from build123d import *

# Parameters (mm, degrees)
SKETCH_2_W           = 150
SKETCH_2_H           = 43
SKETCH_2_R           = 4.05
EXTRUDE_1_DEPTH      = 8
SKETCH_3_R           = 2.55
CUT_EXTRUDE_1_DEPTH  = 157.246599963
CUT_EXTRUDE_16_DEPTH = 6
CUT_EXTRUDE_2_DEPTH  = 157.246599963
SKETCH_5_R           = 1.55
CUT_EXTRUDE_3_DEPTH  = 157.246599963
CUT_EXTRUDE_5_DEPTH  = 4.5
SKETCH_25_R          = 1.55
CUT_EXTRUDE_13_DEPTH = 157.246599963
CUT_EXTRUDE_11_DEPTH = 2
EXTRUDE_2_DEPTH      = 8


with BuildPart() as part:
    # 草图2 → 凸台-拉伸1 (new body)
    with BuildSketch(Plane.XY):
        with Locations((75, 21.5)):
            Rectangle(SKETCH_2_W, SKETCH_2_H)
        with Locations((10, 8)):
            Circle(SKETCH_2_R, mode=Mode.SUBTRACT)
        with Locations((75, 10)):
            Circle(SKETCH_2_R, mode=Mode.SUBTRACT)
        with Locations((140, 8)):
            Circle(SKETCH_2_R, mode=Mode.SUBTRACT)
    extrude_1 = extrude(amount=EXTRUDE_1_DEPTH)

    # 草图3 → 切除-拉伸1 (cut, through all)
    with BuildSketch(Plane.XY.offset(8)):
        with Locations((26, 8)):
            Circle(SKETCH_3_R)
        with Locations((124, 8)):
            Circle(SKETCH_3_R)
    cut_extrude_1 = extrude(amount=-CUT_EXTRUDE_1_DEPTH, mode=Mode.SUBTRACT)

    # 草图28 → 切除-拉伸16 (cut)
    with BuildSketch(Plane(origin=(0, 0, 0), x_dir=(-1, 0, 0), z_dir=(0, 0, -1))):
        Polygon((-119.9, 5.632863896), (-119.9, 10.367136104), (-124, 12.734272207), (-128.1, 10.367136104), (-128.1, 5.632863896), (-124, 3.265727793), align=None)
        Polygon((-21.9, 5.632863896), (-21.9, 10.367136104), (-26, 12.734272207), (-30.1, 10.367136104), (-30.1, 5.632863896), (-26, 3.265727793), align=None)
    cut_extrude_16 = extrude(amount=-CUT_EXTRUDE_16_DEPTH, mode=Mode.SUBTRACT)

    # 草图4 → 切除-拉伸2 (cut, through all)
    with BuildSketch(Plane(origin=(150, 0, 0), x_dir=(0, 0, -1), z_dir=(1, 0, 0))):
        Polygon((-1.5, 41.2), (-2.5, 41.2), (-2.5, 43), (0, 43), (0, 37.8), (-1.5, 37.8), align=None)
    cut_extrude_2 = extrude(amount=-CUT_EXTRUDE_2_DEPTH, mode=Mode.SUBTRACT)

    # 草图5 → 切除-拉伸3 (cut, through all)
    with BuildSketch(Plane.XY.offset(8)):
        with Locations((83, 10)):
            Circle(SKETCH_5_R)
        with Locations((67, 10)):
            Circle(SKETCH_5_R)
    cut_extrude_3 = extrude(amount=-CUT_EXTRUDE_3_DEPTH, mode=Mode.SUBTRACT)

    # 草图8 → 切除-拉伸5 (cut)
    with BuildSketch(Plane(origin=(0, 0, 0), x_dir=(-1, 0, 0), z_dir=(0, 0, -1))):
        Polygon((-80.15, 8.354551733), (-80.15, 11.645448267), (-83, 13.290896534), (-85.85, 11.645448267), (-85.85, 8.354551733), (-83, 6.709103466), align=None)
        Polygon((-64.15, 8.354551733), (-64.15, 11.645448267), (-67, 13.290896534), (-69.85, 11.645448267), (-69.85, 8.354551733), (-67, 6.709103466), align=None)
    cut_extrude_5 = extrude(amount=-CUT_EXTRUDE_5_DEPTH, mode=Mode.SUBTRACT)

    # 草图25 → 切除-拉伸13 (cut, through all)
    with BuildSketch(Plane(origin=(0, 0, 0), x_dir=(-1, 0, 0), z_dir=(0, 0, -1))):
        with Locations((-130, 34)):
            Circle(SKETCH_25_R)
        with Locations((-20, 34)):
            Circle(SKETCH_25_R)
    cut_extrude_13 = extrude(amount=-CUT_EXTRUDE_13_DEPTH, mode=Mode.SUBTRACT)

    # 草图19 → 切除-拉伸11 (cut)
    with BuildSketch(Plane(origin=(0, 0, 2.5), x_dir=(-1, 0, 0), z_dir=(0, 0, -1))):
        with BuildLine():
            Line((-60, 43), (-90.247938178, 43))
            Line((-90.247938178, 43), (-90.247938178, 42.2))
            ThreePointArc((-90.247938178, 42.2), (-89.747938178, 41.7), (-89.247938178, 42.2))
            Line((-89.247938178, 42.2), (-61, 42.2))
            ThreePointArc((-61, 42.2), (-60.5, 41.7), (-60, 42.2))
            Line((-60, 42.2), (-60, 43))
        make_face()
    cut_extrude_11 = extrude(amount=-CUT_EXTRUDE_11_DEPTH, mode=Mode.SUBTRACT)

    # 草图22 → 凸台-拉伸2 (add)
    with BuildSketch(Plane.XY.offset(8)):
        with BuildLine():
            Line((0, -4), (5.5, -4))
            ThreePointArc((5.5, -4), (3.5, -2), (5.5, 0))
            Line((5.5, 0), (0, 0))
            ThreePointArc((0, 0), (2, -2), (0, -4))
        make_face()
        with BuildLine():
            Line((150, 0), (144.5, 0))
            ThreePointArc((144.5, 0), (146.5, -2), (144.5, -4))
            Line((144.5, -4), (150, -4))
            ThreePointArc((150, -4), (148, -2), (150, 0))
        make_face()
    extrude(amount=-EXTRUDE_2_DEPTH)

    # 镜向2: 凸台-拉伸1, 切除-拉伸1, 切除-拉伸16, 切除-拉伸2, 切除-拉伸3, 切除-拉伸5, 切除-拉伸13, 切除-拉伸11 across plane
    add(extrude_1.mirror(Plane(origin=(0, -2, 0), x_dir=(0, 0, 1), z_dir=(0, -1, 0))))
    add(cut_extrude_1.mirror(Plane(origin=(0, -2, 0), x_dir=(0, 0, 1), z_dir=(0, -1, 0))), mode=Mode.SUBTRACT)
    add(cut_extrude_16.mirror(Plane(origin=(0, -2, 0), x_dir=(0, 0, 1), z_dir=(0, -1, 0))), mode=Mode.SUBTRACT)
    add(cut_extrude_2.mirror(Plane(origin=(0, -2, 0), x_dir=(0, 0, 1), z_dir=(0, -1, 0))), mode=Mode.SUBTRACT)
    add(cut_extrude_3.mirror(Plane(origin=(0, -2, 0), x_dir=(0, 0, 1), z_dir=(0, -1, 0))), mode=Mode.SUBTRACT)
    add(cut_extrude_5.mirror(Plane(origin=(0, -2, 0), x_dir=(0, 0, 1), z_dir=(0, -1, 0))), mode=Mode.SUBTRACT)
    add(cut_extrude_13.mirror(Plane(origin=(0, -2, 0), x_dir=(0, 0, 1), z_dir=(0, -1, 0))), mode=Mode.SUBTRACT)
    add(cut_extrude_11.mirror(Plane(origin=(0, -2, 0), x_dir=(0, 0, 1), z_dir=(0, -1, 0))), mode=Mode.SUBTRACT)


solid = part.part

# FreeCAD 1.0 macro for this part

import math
import FreeCAD as App
import Part
import Sketcher
Q = App.Units.Quantity


def add_polygon(sketch, points):
    """Adds a closed chain of lines whose ends are joined by coincident constraints."""
    first, n = sketch.GeometryCount, len(points)
    for a, b in zip(points, points[1:] + points[:1]):
        sketch.addGeometry(Part.LineSegment(App.Vector(*a, 0), App.Vector(*b, 0)), False)
    for i in range(n):
        sketch.addConstraint(Sketcher.Constraint("Coincident", first + i, 2, first + (i + 1) % n, 1))

doc = App.newDocument("Part")
body = doc.addObject("PartDesign::Body", "Body")

# Sketch on XY plane
sketch1 = body.newObject("Sketcher::SketchObject", "Sketch")
sketch1.AttachmentSupport = (doc.getObject("XY_Plane"), [""])
sketch1.MapMode = "FlatFace"
add_polygon(sketch1, [(0, 43), (0, 0), (150, 0), (150, 43)])  # lines 0-3
sketch1.addGeometry(Part.Circle(App.Vector(10, 8, 0), App.Vector(0, 0, 1), 4), False)  # 4
sketch1.addGeometry(Part.Circle(App.Vector(140, 8, 0), App.Vector(0, 0, 1), 4), False)  # 5
sketch1.addGeometry(Part.Circle(App.Vector(75, 10, 0), App.Vector(0, 0, 1), 4), False)  # 6
sketch1.addConstraint(Sketcher.Constraint("Vertical", 0))
sketch1.addConstraint(Sketcher.Constraint("Horizontal", 1))
sketch1.addConstraint(Sketcher.Constraint("Vertical", 2))
sketch1.addConstraint(Sketcher.Constraint("Horizontal", 3))
sketch1.addConstraint(Sketcher.Constraint("Coincident", 0, 2, -1, 1))
sketch1.addConstraint(Sketcher.Constraint("Equal", 4, 5))
sketch1.addConstraint(Sketcher.Constraint("Equal", 5, 6))
sketch1.addConstraint(Sketcher.Constraint("Horizontal", 4, 3, 5, 3))
sketch1.addConstraint(Sketcher.Constraint("Diameter", 4, Q("8.1 mm")))
sketch1.addConstraint(Sketcher.Constraint("DistanceX", 1, 1, 1, 2, Q("150 mm")))
sketch1.addConstraint(Sketcher.Constraint("DistanceY", 0, 2, 0, 1, Q("43 mm")))
sketch1.addConstraint(Sketcher.Constraint("DistanceX", -1, 1, 4, 3, Q("10 mm")))
sketch1.addConstraint(Sketcher.Constraint("DistanceY", -1, 1, 4, 3, Q("8 mm")))
sketch1.addConstraint(Sketcher.Constraint("DistanceX", -1, 1, 5, 3, Q("140 mm")))
sketch1.addConstraint(Sketcher.Constraint("DistanceX", -1, 1, 6, 3, Q("75 mm")))
sketch1.addConstraint(Sketcher.Constraint("DistanceY", -1, 1, 6, 3, Q("10 mm")))
pad1 = body.newObject("PartDesign::Pad", "Pad")
pad1.Profile = sketch1
pad1.Length = 8

# Sketch on XY plane
sketch2 = body.newObject("Sketcher::SketchObject", "Sketch001")
sketch2.AttachmentSupport = (doc.getObject("XY_Plane"), [""])
sketch2.MapMode = "FlatFace"
sketch2.AttachmentOffset = App.Placement(App.Vector(0, 0, 8), App.Rotation())
sketch2.addGeometry(Part.Circle(App.Vector(26, 8, 0), App.Vector(0, 0, 1), 2.5), False)
sketch2.addGeometry(Part.Circle(App.Vector(124, 8, 0), App.Vector(0, 0, 1), 2.5), False)
sketch2.addConstraint(Sketcher.Constraint("Equal", 0, 1))
sketch2.addConstraint(Sketcher.Constraint("Horizontal", 0, 3, 1, 3))
sketch2.addConstraint(Sketcher.Constraint("Diameter", 0, Q("5.1 mm")))
sketch2.addConstraint(Sketcher.Constraint("DistanceX", -1, 1, 0, 3, Q("26 mm")))
sketch2.addConstraint(Sketcher.Constraint("DistanceY", -1, 1, 0, 3, Q("8 mm")))
sketch2.addConstraint(Sketcher.Constraint("DistanceX", -1, 1, 1, 3, Q("124 mm")))
pocket1 = body.newObject("PartDesign::Pocket", "Pocket")
pocket1.Profile = sketch2
pocket1.Type = "ThroughAll"

# Sketch on XY plane
sketch3 = body.newObject("Sketcher::SketchObject", "Sketch002")
sketch3.AttachmentSupport = (doc.getObject("XY_Plane"), [""])
sketch3.MapMode = "FlatFace"
add_polygon(sketch3, [(119.9, 5.6), (119.9, 10.4), (124, 12.7), (128.1, 10.4), (128.1, 5.6), (124, 3.3)])  # lines 0-5
add_polygon(sketch3, [(21.9, 5.6), (21.9, 10.4), (26, 12.7), (30.1, 10.4), (30.1, 5.6), (26, 3.3)])  # lines 6-11
sketch3.addConstraint(Sketcher.Constraint("Vertical", 0))
sketch3.addConstraint(Sketcher.Constraint("Vertical", 3))
sketch3.addConstraint(Sketcher.Constraint("Vertical", 6))
sketch3.addConstraint(Sketcher.Constraint("Vertical", 9))
sketch3.addConstraint(Sketcher.Constraint("Parallel", 1, 4))
sketch3.addConstraint(Sketcher.Constraint("Parallel", 2, 5))
sketch3.addConstraint(Sketcher.Constraint("Parallel", 4, 7))
sketch3.addConstraint(Sketcher.Constraint("Parallel", 5, 8))
sketch3.addConstraint(Sketcher.Constraint("Parallel", 7, 10))
sketch3.addConstraint(Sketcher.Constraint("Parallel", 8, 11))
sketch3.addConstraint(Sketcher.Constraint("Horizontal", 0, 2, 2, 2))
sketch3.addConstraint(Sketcher.Constraint("Horizontal", 3, 2, 5, 2))
sketch3.addConstraint(Sketcher.Constraint("Horizontal", 2, 2, 6, 2))
sketch3.addConstraint(Sketcher.Constraint("Horizontal", 1, 2, 7, 2))
sketch3.addConstraint(Sketcher.Constraint("Horizontal", 6, 2, 8, 2))
sketch3.addConstraint(Sketcher.Constraint("Horizontal", 5, 2, 9, 2))
sketch3.addConstraint(Sketcher.Constraint("Horizontal", 4, 2, 10, 2))
sketch3.addConstraint(Sketcher.Constraint("Vertical", 1, 2, 4, 2))
sketch3.addConstraint(Sketcher.Constraint("Angle", 1, Q("30 deg")))
sketch3.addConstraint(Sketcher.Constraint("DistanceX", -1, 1, 1, 2, Q("124 mm")))
sketch3.addConstraint(Sketcher.Constraint("DistanceX", -1, 1, 7, 2, Q("26 mm")))
sketch3.addConstraint(Sketcher.Constraint("DistanceX", -1, 1, 0, 2, Q("119.9 mm")))
sketch3.addConstraint(Sketcher.Constraint("DistanceY", 0, 1, 0, 2, Q("4.734272 mm")))
sketch3.addConstraint(Sketcher.Constraint("DistanceY", -1, 1, 0, 2, Q("10.367136 mm")))
pocket2 = body.newObject("PartDesign::Pocket", "Pocket001")
pocket2.Profile = sketch3
pocket2.Length = 6
pocket2.Reversed = True

# Sketch on YZ plane
sketch4 = body.newObject("Sketcher::SketchObject", "Sketch003")
sketch4.AttachmentSupport = (doc.getObject("YZ_Plane"), [""])
sketch4.MapMode = "FlatFace"
sketch4.AttachmentOffset = App.Placement(App.Vector(0, 0, 150), App.Rotation())
add_polygon(sketch4, [(41.2, 2.5), (41.2, 1.5), (37.8, 1.5), (37.8, 0), (43, 0), (43, 2.5)])  # lines 0-5
sketch4.addConstraint(Sketcher.Constraint("Vertical", 0))
sketch4.addConstraint(Sketcher.Constraint("Horizontal", 1))
sketch4.addConstraint(Sketcher.Constraint("Vertical", 2))
sketch4.addConstraint(Sketcher.Constraint("Horizontal", 3))
sketch4.addConstraint(Sketcher.Constraint("Vertical", 4))
sketch4.addConstraint(Sketcher.Constraint("Horizontal", 5))
sketch4.addConstraint(Sketcher.Constraint("PointOnObject", 2, 2, -1))
sketch4.addConstraint(Sketcher.Constraint("DistanceY", 0, 2, 0, 1, Q("1 mm")))
sketch4.addConstraint(Sketcher.Constraint("DistanceX", 1, 2, 1, 1, Q("3.4 mm")))
sketch4.addConstraint(Sketcher.Constraint("DistanceX", 3, 1, 3, 2, Q("5.2 mm")))
sketch4.addConstraint(Sketcher.Constraint("DistanceY", 2, 2, 2, 1, Q("1.5 mm")))
sketch4.addConstraint(Sketcher.Constraint("DistanceX", -1, 1, 3, 2, Q("43 mm")))
pocket3 = body.newObject("PartDesign::Pocket", "Pocket002")
pocket3.Profile = sketch4
pocket3.Type = "ThroughAll"

# Sketch on XY plane
sketch5 = body.newObject("Sketcher::SketchObject", "Sketch004")
sketch5.AttachmentSupport = (doc.getObject("XY_Plane"), [""])
sketch5.MapMode = "FlatFace"
sketch5.AttachmentOffset = App.Placement(App.Vector(0, 0, 8), App.Rotation())
sketch5.addGeometry(Part.Circle(App.Vector(83, 10, 0), App.Vector(0, 0, 1), 1.6), False)
sketch5.addGeometry(Part.Circle(App.Vector(67, 10, 0), App.Vector(0, 0, 1), 1.6), False)
sketch5.addConstraint(Sketcher.Constraint("Equal", 0, 1))
sketch5.addConstraint(Sketcher.Constraint("Horizontal", 0, 3, 1, 3))
sketch5.addConstraint(Sketcher.Constraint("Diameter", 0, Q("3.1 mm")))
sketch5.addConstraint(Sketcher.Constraint("DistanceX", -1, 1, 0, 3, Q("83 mm")))
sketch5.addConstraint(Sketcher.Constraint("DistanceY", -1, 1, 0, 3, Q("10 mm")))
sketch5.addConstraint(Sketcher.Constraint("DistanceX", -1, 1, 1, 3, Q("67 mm")))
pocket4 = body.newObject("PartDesign::Pocket", "Pocket003")
pocket4.Profile = sketch5
pocket4.Type = "ThroughAll"

# Sketch on XY plane
sketch6 = body.newObject("Sketcher::SketchObject", "Sketch005")
sketch6.AttachmentSupport = (doc.getObject("XY_Plane"), [""])
sketch6.MapMode = "FlatFace"
add_polygon(sketch6, [(80.2, 8.4), (80.2, 11.6), (83, 13.3), (85.8, 11.6), (85.8, 8.4), (83, 6.7)])  # lines 0-5
add_polygon(sketch6, [(64.2, 8.4), (64.2, 11.6), (67, 13.3), (69.8, 11.6), (69.8, 8.4), (67, 6.7)])  # lines 6-11
sketch6.addConstraint(Sketcher.Constraint("Vertical", 0))
sketch6.addConstraint(Sketcher.Constraint("Vertical", 3))
sketch6.addConstraint(Sketcher.Constraint("Vertical", 6))
sketch6.addConstraint(Sketcher.Constraint("Vertical", 9))
sketch6.addConstraint(Sketcher.Constraint("Parallel", 1, 4))
sketch6.addConstraint(Sketcher.Constraint("Parallel", 2, 5))
sketch6.addConstraint(Sketcher.Constraint("Parallel", 4, 7))
sketch6.addConstraint(Sketcher.Constraint("Parallel", 5, 8))
sketch6.addConstraint(Sketcher.Constraint("Parallel", 7, 10))
sketch6.addConstraint(Sketcher.Constraint("Parallel", 8, 11))
sketch6.addConstraint(Sketcher.Constraint("Horizontal", 0, 2, 2, 2))
sketch6.addConstraint(Sketcher.Constraint("Horizontal", 3, 2, 5, 2))
sketch6.addConstraint(Sketcher.Constraint("Horizontal", 2, 2, 6, 2))
sketch6.addConstraint(Sketcher.Constraint("Horizontal", 1, 2, 7, 2))
sketch6.addConstraint(Sketcher.Constraint("Horizontal", 6, 2, 8, 2))
sketch6.addConstraint(Sketcher.Constraint("Horizontal", 5, 2, 9, 2))
sketch6.addConstraint(Sketcher.Constraint("Horizontal", 4, 2, 10, 2))
sketch6.addConstraint(Sketcher.Constraint("Vertical", 1, 2, 4, 2))
sketch6.addConstraint(Sketcher.Constraint("Angle", 1, Q("30 deg")))
sketch6.addConstraint(Sketcher.Constraint("DistanceX", -1, 1, 1, 2, Q("83 mm")))
sketch6.addConstraint(Sketcher.Constraint("DistanceX", -1, 1, 7, 2, Q("67 mm")))
sketch6.addConstraint(Sketcher.Constraint("DistanceX", 0, 2, 2, 2, Q("5.7 mm")))
sketch6.addConstraint(Sketcher.Constraint("DistanceY", 0, 1, 0, 2, Q("3.290897 mm")))
sketch6.addConstraint(Sketcher.Constraint("DistanceY", -1, 1, 0, 2, Q("11.645448 mm")))
pocket5 = body.newObject("PartDesign::Pocket", "Pocket004")
pocket5.Profile = sketch6
pocket5.Length = 4.5
pocket5.Reversed = True

# Sketch on XY plane
sketch7 = body.newObject("Sketcher::SketchObject", "Sketch006")
sketch7.AttachmentSupport = (doc.getObject("XY_Plane"), [""])
sketch7.MapMode = "FlatFace"
sketch7.addGeometry(Part.Circle(App.Vector(130, 34, 0), App.Vector(0, 0, 1), 1.6), False)
sketch7.addGeometry(Part.Circle(App.Vector(20, 34, 0), App.Vector(0, 0, 1), 1.6), False)
sketch7.addConstraint(Sketcher.Constraint("Equal", 0, 1))
sketch7.addConstraint(Sketcher.Constraint("Horizontal", 0, 3, 1, 3))
sketch7.addConstraint(Sketcher.Constraint("Diameter", 0, Q("3.1 mm")))
sketch7.addConstraint(Sketcher.Constraint("DistanceX", -1, 1, 0, 3, Q("130 mm")))
sketch7.addConstraint(Sketcher.Constraint("DistanceY", -1, 1, 0, 3, Q("34 mm")))
sketch7.addConstraint(Sketcher.Constraint("DistanceX", -1, 1, 1, 3, Q("20 mm")))
pocket6 = body.newObject("PartDesign::Pocket", "Pocket005")
pocket6.Profile = sketch7
pocket6.Type = "ThroughAll"
pocket6.Reversed = True

# Sketch on XY plane
sketch8 = body.newObject("Sketcher::SketchObject", "Sketch007")
sketch8.AttachmentSupport = (doc.getObject("XY_Plane"), [""])
sketch8.MapMode = "FlatFace"
sketch8.AttachmentOffset = App.Placement(App.Vector(0, 0, 2.5), App.Rotation())
sketch8.addGeometry(Part.LineSegment(App.Vector(60, 43, 0), App.Vector(90.2, 43, 0)), False)
sketch8.addGeometry(Part.LineSegment(App.Vector(90.2, 43, 0), App.Vector(90.2, 42.2, 0)), False)
sketch8.addGeometry(Part.ArcOfCircle(Part.Circle(App.Vector(89.7, 42.2, 0), App.Vector(0, 0, 1), 0.5), math.radians(180), math.radians(360)), False)
sketch8.addGeometry(Part.LineSegment(App.Vector(89.2, 42.2, 0), App.Vector(61, 42.2, 0)), False)
sketch8.addGeometry(Part.ArcOfCircle(Part.Circle(App.Vector(60.5, 42.2, 0), App.Vector(0, 0, 1), 0.5), math.radians(180), math.radians(360)), False)
sketch8.addGeometry(Part.LineSegment(App.Vector(60, 42.2, 0), App.Vector(60, 43, 0)), False)
sketch8.addConstraint(Sketcher.Constraint("Coincident", 0, 2, 1, 1))
sketch8.addConstraint(Sketcher.Constraint("Tangent", 1, 2, 2, 2))
sketch8.addConstraint(Sketcher.Constraint("Coincident", 2, 1, 3, 1))
sketch8.addConstraint(Sketcher.Constraint("Coincident", 3, 2, 4, 2))
sketch8.addConstraint(Sketcher.Constraint("Tangent", 4, 1, 5, 1))
sketch8.addConstraint(Sketcher.Constraint("Coincident", 5, 2, 0, 1))
sketch8.addConstraint(Sketcher.Constraint("Horizontal", 0))
sketch8.addConstraint(Sketcher.Constraint("Vertical", 1))
sketch8.addConstraint(Sketcher.Constraint("Horizontal", 3))
sketch8.addConstraint(Sketcher.Constraint("Vertical", 5))
sketch8.addConstraint(Sketcher.Constraint("Equal", 2, 4))
sketch8.addConstraint(Sketcher.Constraint("Horizontal", 2, 3, 4, 3))
sketch8.addConstraint(Sketcher.Constraint("Horizontal", 1, 2, 2, 1))
sketch8.addConstraint(Sketcher.Constraint("Radius", 2, Q("0.5 mm")))
sketch8.addConstraint(Sketcher.Constraint("DistanceY", 1, 2, 1, 1, Q("0.8 mm")))
sketch8.addConstraint(Sketcher.Constraint("DistanceY", -1, 1, 0, 2, Q("43 mm")))
sketch8.addConstraint(Sketcher.Constraint("DistanceX", -1, 1, 3, 2, Q("61 mm")))
sketch8.addConstraint(Sketcher.Constraint("DistanceX", 0, 1, 0, 2, Q("30.247938 mm")))
pocket7 = body.newObject("PartDesign::Pocket", "Pocket006")
pocket7.Profile = sketch8
pocket7.Length = 2
pocket7.Reversed = True

# Sketch on XY plane
sketch9 = body.newObject("Sketcher::SketchObject", "Sketch008")
sketch9.AttachmentSupport = (doc.getObject("XY_Plane"), [""])
sketch9.MapMode = "FlatFace"
sketch9.AttachmentOffset = App.Placement(App.Vector(0, 0, 8), App.Rotation())
sketch9.addGeometry(Part.LineSegment(App.Vector(0, -4, 0), App.Vector(5.5, -4, 0)), False)
sketch9.addGeometry(Part.ArcOfCircle(Part.Circle(App.Vector(5.5, -2, 0), App.Vector(0, 0, 1), 2), math.radians(90), math.radians(270)), False)
sketch9.addGeometry(Part.LineSegment(App.Vector(5.5, 0, 0), App.Vector(0, 0, 0)), False)
sketch9.addGeometry(Part.ArcOfCircle(Part.Circle(App.Vector(0, -2, 0), App.Vector(0, 0, 1), 2), math.radians(-90), math.radians(90)), False)
sketch9.addGeometry(Part.LineSegment(App.Vector(150, 0, 0), App.Vector(144.5, 0, 0)), False)
sketch9.addGeometry(Part.ArcOfCircle(Part.Circle(App.Vector(144.5, -2, 0), App.Vector(0, 0, 1), 2), math.radians(-90), math.radians(90)), False)
sketch9.addGeometry(Part.LineSegment(App.Vector(144.5, -4, 0), App.Vector(150, -4, 0)), False)
sketch9.addGeometry(Part.ArcOfCircle(Part.Circle(App.Vector(150, -2, 0), App.Vector(0, 0, 1), 2), math.radians(90), math.radians(270)), False)
sketch9.addConstraint(Sketcher.Constraint("Tangent", 0, 2, 1, 2))
sketch9.addConstraint(Sketcher.Constraint("Tangent", 1, 1, 2, 1))
sketch9.addConstraint(Sketcher.Constraint("Tangent", 2, 2, 3, 2))
sketch9.addConstraint(Sketcher.Constraint("Tangent", 3, 1, 0, 1))
sketch9.addConstraint(Sketcher.Constraint("Tangent", 4, 2, 5, 2))
sketch9.addConstraint(Sketcher.Constraint("Tangent", 5, 1, 6, 1))
sketch9.addConstraint(Sketcher.Constraint("Tangent", 6, 2, 7, 2))
sketch9.addConstraint(Sketcher.Constraint("Tangent", 7, 1, 4, 1))
sketch9.addConstraint(Sketcher.Constraint("Horizontal", 0))
sketch9.addConstraint(Sketcher.Constraint("Horizontal", 2))
sketch9.addConstraint(Sketcher.Constraint("Horizontal", 4))
sketch9.addConstraint(Sketcher.Constraint("Horizontal", 6))
sketch9.addConstraint(Sketcher.Constraint("Coincident", 2, 2, -1, 1))
sketch9.addConstraint(Sketcher.Constraint("Equal", 3, 5))
sketch9.addConstraint(Sketcher.Constraint("PointOnObject", 4, 2, -1))
sketch9.addConstraint(Sketcher.Constraint("Equal", 2, 4))
sketch9.addConstraint(Sketcher.Constraint("Radius", 1, Q("2 mm")))
sketch9.addConstraint(Sketcher.Constraint("DistanceX", 0, 1, 0, 2, Q("5.5 mm")))
sketch9.addConstraint(Sketcher.Constraint("DistanceX", -1, 1, 7, 3, Q("150 mm")))
pad2 = body.newObject("PartDesign::Pad", "Pad001")
pad2.Profile = sketch9
pad2.Length = 8
pad2.Reversed = True
doc.recompute()

datumplane = body.newObject("PartDesign::Plane", "DatumPlane")
datumplane.AttachmentSupport = (doc.getObject("XZ_Plane"), [""])
datumplane.MapMode = "FlatFace"
datumplane.AttachmentOffset = App.Placement(App.Vector(0, 0, 2), App.Rotation())
mirrored = body.newObject("PartDesign::Mirrored", "Mirrored")
mirrored.Originals = [pad1, pocket1, pocket2, pocket3, pocket4, pocket5, pocket6, pocket7]
mirrored.MirrorPlane = (datumplane, [""])
body.Tip = mirrored

doc.recompute()
